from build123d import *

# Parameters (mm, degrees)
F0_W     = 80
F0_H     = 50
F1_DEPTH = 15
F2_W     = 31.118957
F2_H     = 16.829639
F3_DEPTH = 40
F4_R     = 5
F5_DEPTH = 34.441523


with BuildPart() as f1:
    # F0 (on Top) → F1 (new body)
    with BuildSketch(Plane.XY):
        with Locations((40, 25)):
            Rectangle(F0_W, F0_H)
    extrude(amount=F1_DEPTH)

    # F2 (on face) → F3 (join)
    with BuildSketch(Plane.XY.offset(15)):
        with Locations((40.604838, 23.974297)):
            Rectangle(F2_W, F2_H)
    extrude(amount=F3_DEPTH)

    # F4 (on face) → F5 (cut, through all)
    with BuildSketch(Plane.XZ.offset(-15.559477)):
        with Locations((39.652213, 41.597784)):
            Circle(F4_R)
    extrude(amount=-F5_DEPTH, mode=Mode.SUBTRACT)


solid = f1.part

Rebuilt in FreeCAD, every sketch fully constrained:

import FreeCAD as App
import Part
import Sketcher

doc = App.newDocument("Part")
body = doc.addObject("PartDesign::Body", "Body")

# Sketch on XY plane
sketch1 = body.newObject("Sketcher::SketchObject", "Sketch")
sketch1.AttachmentSupport = (doc.getObject("XY_Plane"), [""])
sketch1.MapMode = "FlatFace"
sketch1.addGeometry([
    Part.LineSegment(App.Vector(0, 50, 0), App.Vector(0, 0, 0)),
    Part.LineSegment(App.Vector(0, 0, 0), App.Vector(80, 0, 0)),
    Part.LineSegment(App.Vector(80, 0, 0), App.Vector(80, 50, 0)),
    Part.LineSegment(App.Vector(80, 50, 0), App.Vector(0, 50, 0)),
], False)
sketch1.addConstraint([
    Sketcher.Constraint("Coincident", 0, 2, 1, 1),
    Sketcher.Constraint("Coincident", 1, 2, 2, 1),
    Sketcher.Constraint("Coincident", 2, 2, 3, 1),
    Sketcher.Constraint("Coincident", 3, 2, 0, 1),
    Sketcher.Constraint("Vertical", 0),
    Sketcher.Constraint("Horizontal", 1),
    Sketcher.Constraint("Vertical", 2),
    Sketcher.Constraint("Horizontal", 3),
    Sketcher.Constraint("Coincident", 0, 2, -1, 1),
    Sketcher.Constraint("DistanceX", 1, 1, 1, 2, 80.0),
    Sketcher.Constraint("DistanceY", 0, 2, 0, 1, 50.0),
])
pad1 = body.newObject("PartDesign::Pad", "Pad")
pad1.Profile = sketch1
pad1.Length = 15

# Sketch on XY plane
sketch2 = body.newObject("Sketcher::SketchObject", "Sketch001")
sketch2.AttachmentSupport = (doc.getObject("XY_Plane"), [""])
sketch2.MapMode = "FlatFace"
sketch2.AttachmentOffset = App.Placement(App.Vector(0, 0, 15), App.Rotation())
sketch2.addGeometry([
    Part.LineSegment(App.Vector(25.045359, 32.389117, 0), App.Vector(25.045359, 15.559477, 0)),
    Part.LineSegment(App.Vector(25.045359, 15.559477, 0), App.Vector(56.164316, 15.559477, 0)),
    Part.LineSegment(App.Vector(56.164316, 15.559477, 0), App.Vector(56.164316, 32.389117, 0)),
    Part.LineSegment(App.Vector(56.164316, 32.389117, 0), App.Vector(25.045359, 32.389117, 0)),
], False)
sketch2.addConstraint([
    Sketcher.Constraint("Coincident", 0, 2, 1, 1),
    Sketcher.Constraint("Coincident", 1, 2, 2, 1),
    Sketcher.Constraint("Coincident", 2, 2, 3, 1),
    Sketcher.Constraint("Coincident", 3, 2, 0, 1),
    Sketcher.Constraint("Vertical", 0),
    Sketcher.Constraint("Horizontal", 1),
    Sketcher.Constraint("Vertical", 2),
    Sketcher.Constraint("Horizontal", 3),
    Sketcher.Constraint("DistanceY", 0, 2, 0, 1, 16.829639),
    Sketcher.Constraint("DistanceX", 1, 1, 1, 2, 31.118957),
    Sketcher.Constraint("DistanceX", -1, 1, 0, 2, 25.045359),
    Sketcher.Constraint("DistanceY", -1, 1, 0, 2, 15.559477),
])
pad2 = body.newObject("PartDesign::Pad", "Pad001")
pad2.Profile = sketch2
pad2.Length = 40

# Sketch on XZ plane
sketch3 = body.newObject("Sketcher::SketchObject", "Sketch002")
sketch3.AttachmentSupport = (doc.getObject("XZ_Plane"), [""])
sketch3.MapMode = "FlatFace"
sketch3.AttachmentOffset = App.Placement(App.Vector(0, 0, -15.559477), App.Rotation())
sketch3.addGeometry(Part.Circle(App.Vector(39.652213, 41.597784, 0), App.Vector(0, 0, 1), 5), False)
sketch3.addConstraint([
    Sketcher.Constraint("Diameter", 0, 10.0),
    Sketcher.Constraint("DistanceX", -1, 1, 0, 3, 39.652213),
    Sketcher.Constraint("DistanceY", -1, 1, 0, 3, 41.597784),
])
pocket1 = body.newObject("PartDesign::Pocket", "Pocket")
pocket1.Profile = sketch3
pocket1.Type = "ThroughAll"

doc.recompute()
